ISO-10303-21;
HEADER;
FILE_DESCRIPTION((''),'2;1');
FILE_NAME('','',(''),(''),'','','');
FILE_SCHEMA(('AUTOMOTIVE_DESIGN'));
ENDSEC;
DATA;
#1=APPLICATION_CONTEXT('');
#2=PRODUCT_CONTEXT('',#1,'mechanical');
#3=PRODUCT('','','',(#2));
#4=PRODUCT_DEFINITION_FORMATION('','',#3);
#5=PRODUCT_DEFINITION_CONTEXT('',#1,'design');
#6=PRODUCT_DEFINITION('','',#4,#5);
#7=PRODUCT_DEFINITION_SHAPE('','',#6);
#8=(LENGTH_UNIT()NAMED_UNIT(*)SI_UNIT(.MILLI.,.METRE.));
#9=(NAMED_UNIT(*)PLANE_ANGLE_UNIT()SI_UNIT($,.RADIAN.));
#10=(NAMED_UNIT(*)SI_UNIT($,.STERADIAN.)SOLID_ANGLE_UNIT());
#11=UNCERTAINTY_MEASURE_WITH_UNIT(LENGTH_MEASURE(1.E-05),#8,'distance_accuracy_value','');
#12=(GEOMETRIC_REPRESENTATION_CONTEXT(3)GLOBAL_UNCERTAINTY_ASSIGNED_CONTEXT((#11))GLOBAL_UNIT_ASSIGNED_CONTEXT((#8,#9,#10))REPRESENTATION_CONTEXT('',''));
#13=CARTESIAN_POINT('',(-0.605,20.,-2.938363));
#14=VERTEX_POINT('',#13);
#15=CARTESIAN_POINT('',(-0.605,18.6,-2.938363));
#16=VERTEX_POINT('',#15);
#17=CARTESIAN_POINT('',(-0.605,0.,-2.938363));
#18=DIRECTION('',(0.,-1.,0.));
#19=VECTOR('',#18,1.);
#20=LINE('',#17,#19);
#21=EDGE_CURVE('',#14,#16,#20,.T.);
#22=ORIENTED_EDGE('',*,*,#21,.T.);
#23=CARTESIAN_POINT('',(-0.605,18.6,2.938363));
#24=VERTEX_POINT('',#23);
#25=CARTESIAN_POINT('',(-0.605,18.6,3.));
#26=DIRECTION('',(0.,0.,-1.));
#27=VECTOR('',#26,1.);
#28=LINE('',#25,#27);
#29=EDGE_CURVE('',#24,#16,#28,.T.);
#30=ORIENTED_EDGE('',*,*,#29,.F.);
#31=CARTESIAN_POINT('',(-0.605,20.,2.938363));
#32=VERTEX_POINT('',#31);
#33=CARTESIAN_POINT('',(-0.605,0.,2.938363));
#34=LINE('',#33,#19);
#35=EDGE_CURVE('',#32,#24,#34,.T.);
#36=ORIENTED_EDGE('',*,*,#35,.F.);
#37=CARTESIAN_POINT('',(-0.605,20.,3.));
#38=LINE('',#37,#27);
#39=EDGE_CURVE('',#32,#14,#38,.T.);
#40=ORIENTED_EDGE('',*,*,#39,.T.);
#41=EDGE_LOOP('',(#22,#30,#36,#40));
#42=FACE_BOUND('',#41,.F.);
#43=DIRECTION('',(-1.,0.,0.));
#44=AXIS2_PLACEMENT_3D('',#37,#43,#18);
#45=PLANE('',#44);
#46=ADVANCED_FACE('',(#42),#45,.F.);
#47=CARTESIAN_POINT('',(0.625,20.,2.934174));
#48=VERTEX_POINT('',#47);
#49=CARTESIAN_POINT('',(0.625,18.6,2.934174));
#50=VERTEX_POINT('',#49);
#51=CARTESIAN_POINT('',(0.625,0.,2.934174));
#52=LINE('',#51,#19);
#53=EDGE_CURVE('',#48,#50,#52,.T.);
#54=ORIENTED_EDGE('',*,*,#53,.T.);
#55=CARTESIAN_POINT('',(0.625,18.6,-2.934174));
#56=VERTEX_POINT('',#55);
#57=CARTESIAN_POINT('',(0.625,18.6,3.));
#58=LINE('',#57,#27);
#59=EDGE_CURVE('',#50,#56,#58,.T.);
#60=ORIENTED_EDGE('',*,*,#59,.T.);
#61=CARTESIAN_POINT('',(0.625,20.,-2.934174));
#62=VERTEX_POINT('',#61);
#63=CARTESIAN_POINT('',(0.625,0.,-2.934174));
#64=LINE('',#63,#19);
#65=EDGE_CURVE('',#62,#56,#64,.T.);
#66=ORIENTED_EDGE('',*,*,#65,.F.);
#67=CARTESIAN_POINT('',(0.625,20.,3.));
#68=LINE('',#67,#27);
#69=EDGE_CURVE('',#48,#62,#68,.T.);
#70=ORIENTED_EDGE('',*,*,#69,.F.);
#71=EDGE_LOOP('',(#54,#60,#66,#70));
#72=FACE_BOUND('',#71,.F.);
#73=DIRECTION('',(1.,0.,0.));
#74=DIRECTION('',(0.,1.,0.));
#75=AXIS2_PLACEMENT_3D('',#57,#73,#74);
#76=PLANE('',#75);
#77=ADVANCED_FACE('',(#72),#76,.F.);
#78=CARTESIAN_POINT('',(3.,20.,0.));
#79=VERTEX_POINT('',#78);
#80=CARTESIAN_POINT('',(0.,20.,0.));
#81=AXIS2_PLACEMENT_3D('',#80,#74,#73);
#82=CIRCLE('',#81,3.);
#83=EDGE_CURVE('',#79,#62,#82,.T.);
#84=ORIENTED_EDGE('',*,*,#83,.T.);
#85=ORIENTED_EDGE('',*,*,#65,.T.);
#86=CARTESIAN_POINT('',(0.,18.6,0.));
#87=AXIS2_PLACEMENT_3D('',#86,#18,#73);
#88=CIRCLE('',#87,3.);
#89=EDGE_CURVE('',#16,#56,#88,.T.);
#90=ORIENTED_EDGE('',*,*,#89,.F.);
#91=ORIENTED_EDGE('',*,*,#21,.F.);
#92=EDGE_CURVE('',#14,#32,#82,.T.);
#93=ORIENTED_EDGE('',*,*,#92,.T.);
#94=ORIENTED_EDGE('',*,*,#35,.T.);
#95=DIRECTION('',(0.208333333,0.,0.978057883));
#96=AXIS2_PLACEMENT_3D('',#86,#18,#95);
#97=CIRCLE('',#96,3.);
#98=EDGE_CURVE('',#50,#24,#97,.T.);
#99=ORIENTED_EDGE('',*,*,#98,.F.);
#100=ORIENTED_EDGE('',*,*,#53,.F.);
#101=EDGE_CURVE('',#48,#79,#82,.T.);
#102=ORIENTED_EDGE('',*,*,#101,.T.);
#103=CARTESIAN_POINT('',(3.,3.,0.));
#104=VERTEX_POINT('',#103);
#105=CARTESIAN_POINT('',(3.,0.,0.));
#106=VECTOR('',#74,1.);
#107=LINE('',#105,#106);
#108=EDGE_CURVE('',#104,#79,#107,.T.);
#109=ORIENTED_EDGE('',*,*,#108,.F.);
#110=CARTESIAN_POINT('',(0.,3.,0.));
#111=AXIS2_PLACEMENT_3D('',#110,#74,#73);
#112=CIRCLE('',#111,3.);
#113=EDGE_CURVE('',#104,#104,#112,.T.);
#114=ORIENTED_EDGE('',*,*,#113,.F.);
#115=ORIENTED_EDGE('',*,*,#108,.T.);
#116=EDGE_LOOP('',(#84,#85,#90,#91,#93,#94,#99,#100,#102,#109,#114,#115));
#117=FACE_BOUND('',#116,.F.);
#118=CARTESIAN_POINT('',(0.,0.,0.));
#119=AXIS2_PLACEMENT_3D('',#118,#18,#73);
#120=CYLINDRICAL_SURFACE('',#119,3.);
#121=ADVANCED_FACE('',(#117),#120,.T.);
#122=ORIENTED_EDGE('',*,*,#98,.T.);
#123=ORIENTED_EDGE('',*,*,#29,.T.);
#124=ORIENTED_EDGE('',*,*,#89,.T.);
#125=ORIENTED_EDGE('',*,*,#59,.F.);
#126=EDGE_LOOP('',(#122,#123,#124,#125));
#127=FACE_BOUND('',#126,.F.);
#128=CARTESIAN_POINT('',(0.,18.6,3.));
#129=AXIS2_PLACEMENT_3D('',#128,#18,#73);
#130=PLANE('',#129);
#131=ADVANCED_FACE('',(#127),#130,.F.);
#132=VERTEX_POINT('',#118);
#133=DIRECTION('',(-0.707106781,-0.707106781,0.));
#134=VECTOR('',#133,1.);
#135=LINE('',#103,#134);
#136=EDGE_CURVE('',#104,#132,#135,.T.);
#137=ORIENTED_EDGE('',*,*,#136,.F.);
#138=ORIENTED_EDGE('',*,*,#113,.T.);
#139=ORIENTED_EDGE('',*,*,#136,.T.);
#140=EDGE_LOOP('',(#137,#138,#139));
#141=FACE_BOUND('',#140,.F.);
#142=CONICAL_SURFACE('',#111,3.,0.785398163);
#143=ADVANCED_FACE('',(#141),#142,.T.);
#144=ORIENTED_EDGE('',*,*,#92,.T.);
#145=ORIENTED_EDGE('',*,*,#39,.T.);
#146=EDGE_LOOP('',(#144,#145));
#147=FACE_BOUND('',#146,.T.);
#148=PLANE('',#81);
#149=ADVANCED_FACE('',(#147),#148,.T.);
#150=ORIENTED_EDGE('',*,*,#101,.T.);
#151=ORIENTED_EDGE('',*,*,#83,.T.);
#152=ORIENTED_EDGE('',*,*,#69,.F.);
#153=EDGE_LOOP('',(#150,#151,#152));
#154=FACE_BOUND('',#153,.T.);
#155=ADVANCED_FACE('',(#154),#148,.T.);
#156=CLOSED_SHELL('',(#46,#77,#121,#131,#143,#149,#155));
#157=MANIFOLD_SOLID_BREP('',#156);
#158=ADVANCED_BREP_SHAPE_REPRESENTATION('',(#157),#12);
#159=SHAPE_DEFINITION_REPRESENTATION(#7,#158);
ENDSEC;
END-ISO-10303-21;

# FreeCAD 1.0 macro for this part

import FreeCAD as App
import Part
import Sketcher
from FreeCAD import Vector
Q = App.Units.Quantity


def edges_at(feature, points):
    """Names of the edges that pass closest to the given points."""
    edges = feature.Shape.Edges
    near = lambda p: min(range(len(edges)), key=lambda i: edges[i].distToShape(Part.Vertex(*p))[0])
    return sorted({f"Edge{near(p) + 1}" for p in points})


def add_polygon(sketch, points):
    """Adds a closed chain of lines whose ends are joined by coincident constraints."""
    first, n = sketch.GeometryCount, len(points)
    for a, b in zip(points, points[1:] + points[:1]):
        sketch.addGeometry(Part.LineSegment(App.Vector(*a, 0), App.Vector(*b, 0)), False)
    for i in range(n):
        sketch.addConstraint(Sketcher.Constraint("Coincident", first + i, 2, first + (i + 1) % n, 1))

doc = App.newDocument("Part")
body = doc.addObject("PartDesign::Body", "Body")

# Sketch on XZ plane
sketch1 = body.newObject("Sketcher::SketchObject", "Sketch")
sketch1.AttachmentSupport = (doc.getObject("XZ_Plane"), [""])
sketch1.MapMode = "FlatFace"
sketch1.addGeometry(Part.Circle(Vector(0, 0, 0), Vector(0, 0, 1), 3), False)
sketch1.addConstraint([
    Sketcher.Constraint("Coincident", 0, 3, -1, 1),
    Sketcher.Constraint("Diameter", 0, Q("6 mm")),
])
pad1 = body.newObject("PartDesign::Pad", "Pad")
pad1.Profile = sketch1
pad1.Length = 20
pad1.Reversed = True
doc.recompute()

chamfer = body.newObject("PartDesign::Chamfer", "Chamfer")
chamfer.Base = (pad1, edges_at(pad1, [(-2.797, 0, 1.085)]))
chamfer.Size = 3

# Sketch on XY plane
sketch2 = body.newObject("Sketcher::SketchObject", "Sketch001")
sketch2.AttachmentSupport = (doc.getObject("XY_Plane"), [""])
sketch2.MapMode = "FlatFace"
sketch2.AttachmentOffset = App.Placement(Vector(0, 0, 3), App.Rotation())
add_polygon(sketch2, [(0.625, 18.6), (0.625, 20), (-0.605, 20), (-0.605, 18.6)])  # lines 0-3
sketch2.addConstraint([
    Sketcher.Constraint("Vertical", 0),
    Sketcher.Constraint("Horizontal", 1),
    Sketcher.Constraint("Vertical", 2),
    Sketcher.Constraint("Horizontal", 3),
    Sketcher.Constraint("DistanceY", 0, 1, 0, 2, Q("1.4 mm")),
    Sketcher.Constraint("DistanceX", 1, 2, 1, 1, Q("1.23 mm")),
    Sketcher.Constraint("DistanceX", -1, 1, 0, 2, Q("0.625 mm")),
    Sketcher.Constraint("DistanceY", -1, 1, 0, 2, Q("20 mm")),
])
pocket1 = body.newObject("PartDesign::Pocket", "Pocket")
pocket1.Profile = sketch2
pocket1.Length = 7

doc.recompute()
